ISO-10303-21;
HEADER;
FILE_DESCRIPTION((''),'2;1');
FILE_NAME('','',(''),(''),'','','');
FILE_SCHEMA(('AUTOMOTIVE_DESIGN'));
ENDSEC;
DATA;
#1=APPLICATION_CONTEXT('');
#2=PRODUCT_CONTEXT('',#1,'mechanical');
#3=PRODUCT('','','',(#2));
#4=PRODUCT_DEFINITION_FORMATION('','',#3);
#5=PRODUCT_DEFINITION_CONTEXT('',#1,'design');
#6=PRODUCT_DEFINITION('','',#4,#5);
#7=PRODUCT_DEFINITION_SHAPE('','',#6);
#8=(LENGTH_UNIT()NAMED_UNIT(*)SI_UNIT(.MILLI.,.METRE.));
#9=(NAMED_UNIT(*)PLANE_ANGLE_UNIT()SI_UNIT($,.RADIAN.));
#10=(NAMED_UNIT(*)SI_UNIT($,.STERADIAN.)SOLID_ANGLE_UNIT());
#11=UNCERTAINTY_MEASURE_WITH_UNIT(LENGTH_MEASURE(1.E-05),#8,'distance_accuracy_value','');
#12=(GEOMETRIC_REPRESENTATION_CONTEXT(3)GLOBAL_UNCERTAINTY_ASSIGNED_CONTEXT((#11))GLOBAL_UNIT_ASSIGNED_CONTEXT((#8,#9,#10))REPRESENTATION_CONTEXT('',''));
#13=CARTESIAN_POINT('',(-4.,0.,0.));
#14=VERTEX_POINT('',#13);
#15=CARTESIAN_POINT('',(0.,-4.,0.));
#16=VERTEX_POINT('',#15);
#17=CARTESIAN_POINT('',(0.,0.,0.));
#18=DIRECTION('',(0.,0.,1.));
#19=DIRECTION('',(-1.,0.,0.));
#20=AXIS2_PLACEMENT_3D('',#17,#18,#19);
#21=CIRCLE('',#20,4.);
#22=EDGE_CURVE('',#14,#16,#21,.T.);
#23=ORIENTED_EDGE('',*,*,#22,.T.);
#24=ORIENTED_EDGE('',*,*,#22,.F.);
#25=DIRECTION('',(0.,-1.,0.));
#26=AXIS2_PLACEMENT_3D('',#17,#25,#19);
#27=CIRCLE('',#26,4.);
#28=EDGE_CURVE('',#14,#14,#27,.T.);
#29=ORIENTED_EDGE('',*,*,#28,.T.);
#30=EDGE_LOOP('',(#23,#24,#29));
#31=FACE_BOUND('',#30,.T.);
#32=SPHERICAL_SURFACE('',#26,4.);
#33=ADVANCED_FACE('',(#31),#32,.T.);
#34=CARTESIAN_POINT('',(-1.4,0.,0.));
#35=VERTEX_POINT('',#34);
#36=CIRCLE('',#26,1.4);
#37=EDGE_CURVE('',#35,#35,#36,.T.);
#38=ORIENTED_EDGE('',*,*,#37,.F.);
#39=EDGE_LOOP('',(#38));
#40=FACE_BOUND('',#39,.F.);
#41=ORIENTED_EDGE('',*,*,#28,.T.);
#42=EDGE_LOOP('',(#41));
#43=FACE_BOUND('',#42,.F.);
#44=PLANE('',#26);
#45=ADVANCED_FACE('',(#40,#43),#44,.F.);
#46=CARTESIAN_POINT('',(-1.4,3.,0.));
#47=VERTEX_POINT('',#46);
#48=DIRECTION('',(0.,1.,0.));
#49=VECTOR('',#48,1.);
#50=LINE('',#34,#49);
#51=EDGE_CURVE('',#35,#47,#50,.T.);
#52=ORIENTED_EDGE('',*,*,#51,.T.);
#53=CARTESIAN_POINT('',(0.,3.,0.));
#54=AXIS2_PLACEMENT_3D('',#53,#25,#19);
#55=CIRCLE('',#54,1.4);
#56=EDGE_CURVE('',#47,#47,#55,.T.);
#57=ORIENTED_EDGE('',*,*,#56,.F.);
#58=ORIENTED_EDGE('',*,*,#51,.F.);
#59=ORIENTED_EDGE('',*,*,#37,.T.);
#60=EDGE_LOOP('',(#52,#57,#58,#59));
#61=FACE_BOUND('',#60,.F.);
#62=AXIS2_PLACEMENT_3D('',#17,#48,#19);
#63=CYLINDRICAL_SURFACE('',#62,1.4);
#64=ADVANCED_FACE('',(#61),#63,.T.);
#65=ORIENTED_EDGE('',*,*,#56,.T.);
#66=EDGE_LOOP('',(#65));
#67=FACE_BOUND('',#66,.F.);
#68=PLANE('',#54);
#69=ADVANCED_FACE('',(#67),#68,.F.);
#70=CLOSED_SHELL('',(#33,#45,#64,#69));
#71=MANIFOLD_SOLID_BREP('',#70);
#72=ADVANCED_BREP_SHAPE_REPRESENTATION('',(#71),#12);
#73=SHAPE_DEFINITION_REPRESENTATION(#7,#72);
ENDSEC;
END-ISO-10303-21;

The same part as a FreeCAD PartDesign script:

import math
import FreeCAD as App
import Part
import Sketcher
Q = App.Units.Quantity

doc = App.newDocument("Part")
body = doc.addObject("PartDesign::Body", "Body")

sketch1 = doc.addObject("Sketcher::SketchObject", "Sketch")
body.addObject(sketch1)
sketch1.AttachmentSupport = (doc.XY_Plane, [""])
sketch1.MapMode = "FlatFace"
sketch1.addGeometry(Part.LineSegment(App.Vector(-1.4, 0, 0), App.Vector(-4, 0, 0)), False)
sketch1.addGeometry(Part.ArcOfCircle(Part.Circle(App.Vector(0, 0, 0), App.Vector(0, 0, 1), 4), math.radians(180), math.radians(270)), False)
sketch1.addGeometry(Part.LineSegment(App.Vector(0, -4, 0), App.Vector(0, 3, 0)), False)
sketch1.addGeometry(Part.LineSegment(App.Vector(0, 3, 0), App.Vector(-1.4, 3, 0)), False)
sketch1.addGeometry(Part.LineSegment(App.Vector(-1.4, 3, 0), App.Vector(-1.4, 0, 0)), False)
sketch1.addConstraint(Sketcher.Constraint("Coincident", 0, 2, 1, 1))
sketch1.addConstraint(Sketcher.Constraint("Coincident", 1, 2, 2, 1))
sketch1.addConstraint(Sketcher.Constraint("Coincident", 2, 2, 3, 1))
sketch1.addConstraint(Sketcher.Constraint("Coincident", 3, 2, 4, 1))
sketch1.addConstraint(Sketcher.Constraint("Coincident", 4, 2, 0, 1))
sketch1.addConstraint(Sketcher.Constraint("Horizontal", 0))
sketch1.addConstraint(Sketcher.Constraint("Vertical", 2))
sketch1.addConstraint(Sketcher.Constraint("Horizontal", 3))
sketch1.addConstraint(Sketcher.Constraint("Vertical", 4))
sketch1.addConstraint(Sketcher.Constraint("Coincident", 1, 3, -1, 1))
sketch1.addConstraint(Sketcher.Constraint("PointOnObject", 0, 2, -1))
sketch1.addConstraint(Sketcher.Constraint("PointOnObject", 1, 2, -2))
sketch1.addConstraint(Sketcher.Constraint("Radius", 1, Q("4 mm")))
sketch1.addConstraint(Sketcher.Constraint("DistanceY", 4, 2, 4, 1, Q("3 mm")))
sketch1.addConstraint(Sketcher.Constraint("DistanceX", 3, 2, 3, 1, Q("1.4 mm")))
revolution = doc.addObject("PartDesign::Revolution", "Revolution")
body.addObject(revolution)
revolution.Profile = sketch1
revolution.ReferenceAxis = (sketch1, ["V_Axis"])
revolution.Angle = 360

doc.recompute()
